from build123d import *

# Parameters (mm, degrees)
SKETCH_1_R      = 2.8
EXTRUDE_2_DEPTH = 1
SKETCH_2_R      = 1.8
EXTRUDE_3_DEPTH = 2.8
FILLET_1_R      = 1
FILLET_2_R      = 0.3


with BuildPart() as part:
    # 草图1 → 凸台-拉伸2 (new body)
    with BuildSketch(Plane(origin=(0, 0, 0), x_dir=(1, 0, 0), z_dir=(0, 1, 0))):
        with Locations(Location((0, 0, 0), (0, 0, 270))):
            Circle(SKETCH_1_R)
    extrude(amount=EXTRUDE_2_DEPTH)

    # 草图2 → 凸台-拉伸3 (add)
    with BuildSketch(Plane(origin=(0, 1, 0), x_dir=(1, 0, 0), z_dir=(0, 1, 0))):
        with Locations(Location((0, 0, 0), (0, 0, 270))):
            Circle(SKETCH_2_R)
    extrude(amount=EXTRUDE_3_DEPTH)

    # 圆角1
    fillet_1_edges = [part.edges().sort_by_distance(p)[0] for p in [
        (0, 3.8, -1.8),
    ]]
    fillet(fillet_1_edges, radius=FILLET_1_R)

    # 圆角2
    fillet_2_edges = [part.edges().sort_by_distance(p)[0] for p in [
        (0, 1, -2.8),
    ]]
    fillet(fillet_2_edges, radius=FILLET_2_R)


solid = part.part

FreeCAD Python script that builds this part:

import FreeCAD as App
import Part
import Sketcher

V = App.Vector


def edges_at(feature, points):
    """Names of the edges that pass closest to the given points."""
    edges = feature.Shape.Edges
    near = lambda p: min(range(len(edges)), key=lambda i: edges[i].distToShape(Part.Vertex(*p))[0])
    return sorted({f"Edge{near(p) + 1}" for p in points})

doc = App.newDocument("Part")
body = doc.addObject("PartDesign::Body", "Body")

# Sketch on XZ plane
sketch1 = body.newObject("Sketcher::SketchObject", "Sketch")
sketch1.AttachmentSupport = (doc.getObject("XZ_Plane"), [""])
sketch1.MapMode = "FlatFace"
sketch1.addGeometry(Part.Circle(V(0, 0, 0), V(0, 0, 1), 2.8), False)
sketch1.addConstraint([
    Sketcher.Constraint("Coincident", 0, 3, -1, 1),
    Sketcher.Constraint("Diameter", 0, 5.6),
])
pad1 = body.newObject("PartDesign::Pad", "Pad")
pad1.Profile = sketch1
pad1.Length = 1
pad1.Reversed = True

# Sketch on XZ plane
sketch2 = body.newObject("Sketcher::SketchObject", "Sketch001")
sketch2.AttachmentSupport = (doc.getObject("XZ_Plane"), [""])
sketch2.MapMode = "FlatFace"
sketch2.AttachmentOffset = App.Placement(V(0, 0, -1), App.Rotation())
sketch2.addGeometry(Part.Circle(V(0, 0, 0), V(0, 0, 1), 1.8), False)
sketch2.addConstraint([
    Sketcher.Constraint("Coincident", 0, 3, -1, 1),
    Sketcher.Constraint("Diameter", 0, 3.6),
])
pad2 = body.newObject("PartDesign::Pad", "Pad001")
pad2.Profile = sketch2
pad2.Length = 2.8
pad2.Reversed = True
doc.recompute()

fillet = body.newObject("PartDesign::Fillet", "Fillet")
fillet.Base = (pad2, edges_at(pad2, [(0, 3.8, -1.8)]))
fillet.Radius = 1
doc.recompute()

fillet2 = body.newObject("PartDesign::Fillet", "Fillet001")
fillet2.Base = (fillet, edges_at(fillet, [(0, 1, -2.8)]))
fillet2.Radius = 0.3

doc.recompute()
